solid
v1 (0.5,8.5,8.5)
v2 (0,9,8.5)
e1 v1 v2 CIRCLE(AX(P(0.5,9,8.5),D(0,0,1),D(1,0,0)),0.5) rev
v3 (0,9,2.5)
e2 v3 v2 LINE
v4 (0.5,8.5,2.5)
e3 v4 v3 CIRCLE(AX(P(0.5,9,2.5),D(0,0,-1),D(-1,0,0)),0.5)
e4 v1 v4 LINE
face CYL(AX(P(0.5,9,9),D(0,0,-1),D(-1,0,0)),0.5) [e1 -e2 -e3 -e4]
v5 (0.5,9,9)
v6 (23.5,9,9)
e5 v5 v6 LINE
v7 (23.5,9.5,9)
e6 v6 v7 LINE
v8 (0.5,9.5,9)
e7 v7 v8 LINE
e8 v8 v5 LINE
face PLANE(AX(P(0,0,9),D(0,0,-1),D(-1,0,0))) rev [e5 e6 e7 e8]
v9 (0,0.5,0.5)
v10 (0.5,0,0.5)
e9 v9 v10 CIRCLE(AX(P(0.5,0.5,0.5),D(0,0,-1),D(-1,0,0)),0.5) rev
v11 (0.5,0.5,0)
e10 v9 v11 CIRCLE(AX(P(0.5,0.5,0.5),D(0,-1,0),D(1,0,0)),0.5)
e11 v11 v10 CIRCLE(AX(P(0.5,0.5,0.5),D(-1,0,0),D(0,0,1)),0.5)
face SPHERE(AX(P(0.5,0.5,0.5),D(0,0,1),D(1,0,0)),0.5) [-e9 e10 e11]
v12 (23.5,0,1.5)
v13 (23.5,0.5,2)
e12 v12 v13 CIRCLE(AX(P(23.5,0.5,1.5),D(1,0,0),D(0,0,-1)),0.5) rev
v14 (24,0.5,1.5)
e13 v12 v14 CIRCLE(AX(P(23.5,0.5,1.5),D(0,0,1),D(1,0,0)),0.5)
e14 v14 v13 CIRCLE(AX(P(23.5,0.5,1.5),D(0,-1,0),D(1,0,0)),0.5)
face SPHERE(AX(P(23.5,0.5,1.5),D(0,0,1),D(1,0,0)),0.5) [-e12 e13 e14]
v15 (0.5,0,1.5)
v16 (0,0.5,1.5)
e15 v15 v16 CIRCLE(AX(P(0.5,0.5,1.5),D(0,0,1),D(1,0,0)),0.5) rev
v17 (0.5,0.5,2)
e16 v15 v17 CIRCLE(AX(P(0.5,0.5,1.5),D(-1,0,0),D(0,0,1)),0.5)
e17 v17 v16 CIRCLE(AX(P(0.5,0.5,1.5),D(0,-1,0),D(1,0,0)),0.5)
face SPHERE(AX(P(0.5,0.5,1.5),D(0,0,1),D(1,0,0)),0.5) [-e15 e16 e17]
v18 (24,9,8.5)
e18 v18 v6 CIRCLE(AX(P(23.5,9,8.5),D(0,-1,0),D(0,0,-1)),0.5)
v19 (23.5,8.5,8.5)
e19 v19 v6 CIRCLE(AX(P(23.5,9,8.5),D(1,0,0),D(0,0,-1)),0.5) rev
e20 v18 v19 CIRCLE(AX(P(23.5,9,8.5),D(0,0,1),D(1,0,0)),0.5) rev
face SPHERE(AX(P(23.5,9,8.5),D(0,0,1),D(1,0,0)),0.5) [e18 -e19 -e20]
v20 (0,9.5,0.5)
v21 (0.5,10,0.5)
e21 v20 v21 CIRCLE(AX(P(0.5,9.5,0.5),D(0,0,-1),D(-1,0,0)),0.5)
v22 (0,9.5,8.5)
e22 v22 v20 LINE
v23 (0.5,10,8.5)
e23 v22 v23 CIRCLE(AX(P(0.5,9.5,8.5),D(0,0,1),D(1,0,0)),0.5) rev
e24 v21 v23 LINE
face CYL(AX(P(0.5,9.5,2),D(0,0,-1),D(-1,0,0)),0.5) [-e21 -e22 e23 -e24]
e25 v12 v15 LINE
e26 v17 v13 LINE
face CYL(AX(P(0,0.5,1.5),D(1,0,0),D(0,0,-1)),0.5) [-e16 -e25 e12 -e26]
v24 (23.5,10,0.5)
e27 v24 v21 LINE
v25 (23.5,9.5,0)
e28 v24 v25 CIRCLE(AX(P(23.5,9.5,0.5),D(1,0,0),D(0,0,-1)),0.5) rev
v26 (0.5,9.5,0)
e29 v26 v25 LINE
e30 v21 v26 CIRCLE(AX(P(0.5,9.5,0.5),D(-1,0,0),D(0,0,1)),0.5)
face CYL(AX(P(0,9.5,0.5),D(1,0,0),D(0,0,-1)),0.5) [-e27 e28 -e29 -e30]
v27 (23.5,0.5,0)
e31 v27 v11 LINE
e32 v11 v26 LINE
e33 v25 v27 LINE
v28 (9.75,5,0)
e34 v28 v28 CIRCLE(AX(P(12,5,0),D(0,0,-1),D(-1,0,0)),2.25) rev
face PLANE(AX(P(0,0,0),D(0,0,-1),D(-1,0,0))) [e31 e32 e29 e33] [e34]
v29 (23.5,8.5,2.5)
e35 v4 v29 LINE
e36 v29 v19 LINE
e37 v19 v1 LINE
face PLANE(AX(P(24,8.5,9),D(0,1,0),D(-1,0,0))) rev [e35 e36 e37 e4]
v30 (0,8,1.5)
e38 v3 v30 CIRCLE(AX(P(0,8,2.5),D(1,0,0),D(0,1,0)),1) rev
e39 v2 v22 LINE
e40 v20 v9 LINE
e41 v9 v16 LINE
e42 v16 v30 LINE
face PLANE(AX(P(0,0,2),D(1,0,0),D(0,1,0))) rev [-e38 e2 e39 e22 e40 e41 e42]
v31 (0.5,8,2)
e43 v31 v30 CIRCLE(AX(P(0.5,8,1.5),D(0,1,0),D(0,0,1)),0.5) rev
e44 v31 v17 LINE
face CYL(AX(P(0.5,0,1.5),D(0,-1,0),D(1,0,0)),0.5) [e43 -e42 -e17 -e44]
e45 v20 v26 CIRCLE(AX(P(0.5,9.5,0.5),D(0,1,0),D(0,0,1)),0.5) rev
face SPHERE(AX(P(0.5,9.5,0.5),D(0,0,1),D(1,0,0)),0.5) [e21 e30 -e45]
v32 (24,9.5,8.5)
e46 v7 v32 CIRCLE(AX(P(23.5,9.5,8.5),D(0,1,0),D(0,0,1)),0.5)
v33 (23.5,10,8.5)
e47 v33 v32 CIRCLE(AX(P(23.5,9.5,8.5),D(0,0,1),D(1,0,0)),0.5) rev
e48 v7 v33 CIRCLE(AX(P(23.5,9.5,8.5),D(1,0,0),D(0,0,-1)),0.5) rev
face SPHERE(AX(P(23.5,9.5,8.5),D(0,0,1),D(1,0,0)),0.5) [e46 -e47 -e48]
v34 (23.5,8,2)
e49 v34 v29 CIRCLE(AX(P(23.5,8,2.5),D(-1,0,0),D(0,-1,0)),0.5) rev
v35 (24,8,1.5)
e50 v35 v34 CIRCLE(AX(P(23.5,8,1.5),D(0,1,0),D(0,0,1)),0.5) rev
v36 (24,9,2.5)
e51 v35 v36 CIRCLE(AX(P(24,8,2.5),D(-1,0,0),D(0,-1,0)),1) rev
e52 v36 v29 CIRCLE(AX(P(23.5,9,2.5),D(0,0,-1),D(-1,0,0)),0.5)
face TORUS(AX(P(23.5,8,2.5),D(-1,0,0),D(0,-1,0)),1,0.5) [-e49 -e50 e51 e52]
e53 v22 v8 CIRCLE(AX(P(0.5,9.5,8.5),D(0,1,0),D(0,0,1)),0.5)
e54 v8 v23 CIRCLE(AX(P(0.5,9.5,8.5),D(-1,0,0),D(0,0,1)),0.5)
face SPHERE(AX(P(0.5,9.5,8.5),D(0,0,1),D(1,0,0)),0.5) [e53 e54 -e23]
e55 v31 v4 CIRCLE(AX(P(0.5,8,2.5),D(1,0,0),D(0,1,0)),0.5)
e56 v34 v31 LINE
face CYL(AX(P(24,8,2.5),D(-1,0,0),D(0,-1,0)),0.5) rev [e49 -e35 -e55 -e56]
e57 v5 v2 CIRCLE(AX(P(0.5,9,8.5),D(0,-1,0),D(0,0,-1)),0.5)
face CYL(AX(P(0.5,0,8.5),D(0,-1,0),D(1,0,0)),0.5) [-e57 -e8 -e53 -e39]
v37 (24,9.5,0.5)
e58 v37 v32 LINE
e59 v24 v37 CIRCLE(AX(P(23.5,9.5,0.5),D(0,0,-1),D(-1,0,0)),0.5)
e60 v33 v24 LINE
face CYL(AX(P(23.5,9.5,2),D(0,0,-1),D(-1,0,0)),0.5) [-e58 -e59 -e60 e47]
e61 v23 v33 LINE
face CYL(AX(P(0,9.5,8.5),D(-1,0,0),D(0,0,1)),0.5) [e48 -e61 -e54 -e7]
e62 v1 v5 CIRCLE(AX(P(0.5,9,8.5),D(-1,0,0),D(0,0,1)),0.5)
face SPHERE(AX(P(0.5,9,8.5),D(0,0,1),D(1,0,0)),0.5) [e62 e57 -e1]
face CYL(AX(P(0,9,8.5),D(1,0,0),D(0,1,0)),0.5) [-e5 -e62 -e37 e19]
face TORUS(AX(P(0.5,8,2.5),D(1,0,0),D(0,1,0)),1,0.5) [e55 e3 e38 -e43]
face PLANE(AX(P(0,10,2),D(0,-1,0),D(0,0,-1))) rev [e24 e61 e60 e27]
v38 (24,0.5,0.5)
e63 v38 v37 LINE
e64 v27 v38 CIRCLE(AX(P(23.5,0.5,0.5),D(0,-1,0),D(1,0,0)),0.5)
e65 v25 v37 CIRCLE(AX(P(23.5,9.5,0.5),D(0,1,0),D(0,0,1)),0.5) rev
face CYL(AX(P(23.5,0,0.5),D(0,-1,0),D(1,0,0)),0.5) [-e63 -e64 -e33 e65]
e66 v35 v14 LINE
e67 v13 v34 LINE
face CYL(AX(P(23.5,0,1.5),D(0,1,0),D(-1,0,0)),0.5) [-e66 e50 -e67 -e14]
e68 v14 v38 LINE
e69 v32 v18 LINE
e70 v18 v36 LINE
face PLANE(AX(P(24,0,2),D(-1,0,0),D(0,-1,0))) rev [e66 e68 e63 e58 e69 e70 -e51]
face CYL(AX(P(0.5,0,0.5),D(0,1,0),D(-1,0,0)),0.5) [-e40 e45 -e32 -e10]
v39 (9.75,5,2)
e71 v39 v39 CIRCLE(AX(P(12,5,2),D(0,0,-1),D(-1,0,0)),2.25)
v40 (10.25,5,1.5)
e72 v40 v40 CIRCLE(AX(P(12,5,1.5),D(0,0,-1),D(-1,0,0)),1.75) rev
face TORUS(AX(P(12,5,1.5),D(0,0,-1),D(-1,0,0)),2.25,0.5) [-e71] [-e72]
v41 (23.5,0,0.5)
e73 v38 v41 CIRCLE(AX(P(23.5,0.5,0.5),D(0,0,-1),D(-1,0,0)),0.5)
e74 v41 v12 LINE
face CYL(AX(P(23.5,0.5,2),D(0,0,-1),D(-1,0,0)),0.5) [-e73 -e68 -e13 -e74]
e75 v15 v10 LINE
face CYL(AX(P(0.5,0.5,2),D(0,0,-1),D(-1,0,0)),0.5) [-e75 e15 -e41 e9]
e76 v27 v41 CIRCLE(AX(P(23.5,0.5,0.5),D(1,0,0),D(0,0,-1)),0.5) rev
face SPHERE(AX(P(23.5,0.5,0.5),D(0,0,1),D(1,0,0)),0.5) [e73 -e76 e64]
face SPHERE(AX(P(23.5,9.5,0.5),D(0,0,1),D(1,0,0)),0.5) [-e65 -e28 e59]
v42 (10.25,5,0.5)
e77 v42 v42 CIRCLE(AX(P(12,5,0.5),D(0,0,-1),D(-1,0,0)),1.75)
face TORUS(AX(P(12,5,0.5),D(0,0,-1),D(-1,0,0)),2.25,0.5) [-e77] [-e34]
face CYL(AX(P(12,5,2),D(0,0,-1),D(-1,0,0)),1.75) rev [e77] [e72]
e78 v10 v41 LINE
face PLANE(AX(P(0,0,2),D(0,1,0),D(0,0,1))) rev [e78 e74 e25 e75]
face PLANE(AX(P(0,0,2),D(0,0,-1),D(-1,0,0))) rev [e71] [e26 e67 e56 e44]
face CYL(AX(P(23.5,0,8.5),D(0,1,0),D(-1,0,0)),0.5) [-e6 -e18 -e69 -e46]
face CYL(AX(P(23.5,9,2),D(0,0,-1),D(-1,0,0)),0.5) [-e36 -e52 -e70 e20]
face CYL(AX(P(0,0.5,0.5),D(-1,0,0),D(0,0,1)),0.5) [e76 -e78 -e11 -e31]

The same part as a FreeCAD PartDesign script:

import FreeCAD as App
import Part
import Sketcher

V = App.Vector

doc = App.newDocument("Part")
body = doc.addObject("PartDesign::Body", "Body")

# Sketch on XY plane
sketch1 = body.newObject("Sketcher::SketchObject", "Sketch")
sketch1.AttachmentSupport = (doc.getObject("XY_Plane"), [""])
sketch1.MapMode = "FlatFace"
sketch1.addGeometry(Part.LineSegment(V(0, 10, 0), V(0, 0, 0)), False)
sketch1.addGeometry(Part.LineSegment(V(0, 0, 0), V(24, 0, 0)), False)
sketch1.addGeometry(Part.LineSegment(V(24, 0, 0), V(24, 10, 0)), False)
sketch1.addGeometry(Part.LineSegment(V(24, 10, 0), V(0, 10, 0)), False)
sketch1.addGeometry(Part.Circle(V(12, 5, 0), V(0, 0, 1), 1.75), False)
sketch1.addConstraint(Sketcher.Constraint("Coincident", 0, 2, 1, 1))
sketch1.addConstraint(Sketcher.Constraint("Coincident", 1, 2, 2, 1))
sketch1.addConstraint(Sketcher.Constraint("Coincident", 2, 2, 3, 1))
sketch1.addConstraint(Sketcher.Constraint("Coincident", 3, 2, 0, 1))
sketch1.addConstraint(Sketcher.Constraint("Vertical", 0))
sketch1.addConstraint(Sketcher.Constraint("Horizontal", 1))
sketch1.addConstraint(Sketcher.Constraint("Vertical", 2))
sketch1.addConstraint(Sketcher.Constraint("Horizontal", 3))
sketch1.addConstraint(Sketcher.Constraint("Coincident", 0, 2, -1, 1))
sketch1.addConstraint(Sketcher.Constraint("Diameter", 4, 3.5))
sketch1.addConstraint(Sketcher.Constraint("DistanceX", 1, 1, 1, 2, 24.0))
sketch1.addConstraint(Sketcher.Constraint("DistanceY", 0, 2, 0, 1, 10.0))
sketch1.addConstraint(Sketcher.Constraint("DistanceX", -1, 1, 4, 3, 12.0))
sketch1.addConstraint(Sketcher.Constraint("DistanceY", -1, 1, 4, 3, 5.0))
pad1 = body.newObject("PartDesign::Pad", "Pad")
pad1.Profile = sketch1
pad1.Length = 2

# Sketch on XY plane
sketch2 = body.newObject("Sketcher::SketchObject", "Sketch001")
sketch2.AttachmentSupport = (doc.getObject("XY_Plane"), [""])
sketch2.MapMode = "FlatFace"
sketch2.AttachmentOffset = App.Placement(V(0, 0, 2), App.Rotation())
sketch2.addGeometry(Part.LineSegment(V(0, 10, 0), V(0, 8.5, 0)), False)
sketch2.addGeometry(Part.LineSegment(V(0, 8.5, 0), V(24, 8.5, 0)), False)
sketch2.addGeometry(Part.LineSegment(V(24, 8.5, 0), V(24, 10, 0)), False)
sketch2.addGeometry(Part.LineSegment(V(24, 10, 0), V(0, 10, 0)), False)
sketch2.addConstraint(Sketcher.Constraint("Coincident", 0, 2, 1, 1))
sketch2.addConstraint(Sketcher.Constraint("Coincident", 1, 2, 2, 1))
sketch2.addConstraint(Sketcher.Constraint("Coincident", 2, 2, 3, 1))
sketch2.addConstraint(Sketcher.Constraint("Coincident", 3, 2, 0, 1))
sketch2.addConstraint(Sketcher.Constraint("Vertical", 0))
sketch2.addConstraint(Sketcher.Constraint("Horizontal", 1))
sketch2.addConstraint(Sketcher.Constraint("Vertical", 2))
sketch2.addConstraint(Sketcher.Constraint("Horizontal", 3))
sketch2.addConstraint(Sketcher.Constraint("PointOnObject", 0, 2, -2))
sketch2.addConstraint(Sketcher.Constraint("DistanceX", 1, 1, 1, 2, 24.0))
sketch2.addConstraint(Sketcher.Constraint("DistanceY", 0, 2, 0, 1, 1.5))
sketch2.addConstraint(Sketcher.Constraint("DistanceY", -1, 1, 2, 2, 10.0))
pad2 = body.newObject("PartDesign::Pad", "Pad001")
pad2.Profile = sketch2
pad2.Length = 7
doc.recompute()

fillet = body.newObject("PartDesign::Fillet", "Fillet")
fillet.Base = (pad2, ["Edge1"])
fillet.UseAllEdges = True
fillet.Radius = 0.5

doc.recompute()
